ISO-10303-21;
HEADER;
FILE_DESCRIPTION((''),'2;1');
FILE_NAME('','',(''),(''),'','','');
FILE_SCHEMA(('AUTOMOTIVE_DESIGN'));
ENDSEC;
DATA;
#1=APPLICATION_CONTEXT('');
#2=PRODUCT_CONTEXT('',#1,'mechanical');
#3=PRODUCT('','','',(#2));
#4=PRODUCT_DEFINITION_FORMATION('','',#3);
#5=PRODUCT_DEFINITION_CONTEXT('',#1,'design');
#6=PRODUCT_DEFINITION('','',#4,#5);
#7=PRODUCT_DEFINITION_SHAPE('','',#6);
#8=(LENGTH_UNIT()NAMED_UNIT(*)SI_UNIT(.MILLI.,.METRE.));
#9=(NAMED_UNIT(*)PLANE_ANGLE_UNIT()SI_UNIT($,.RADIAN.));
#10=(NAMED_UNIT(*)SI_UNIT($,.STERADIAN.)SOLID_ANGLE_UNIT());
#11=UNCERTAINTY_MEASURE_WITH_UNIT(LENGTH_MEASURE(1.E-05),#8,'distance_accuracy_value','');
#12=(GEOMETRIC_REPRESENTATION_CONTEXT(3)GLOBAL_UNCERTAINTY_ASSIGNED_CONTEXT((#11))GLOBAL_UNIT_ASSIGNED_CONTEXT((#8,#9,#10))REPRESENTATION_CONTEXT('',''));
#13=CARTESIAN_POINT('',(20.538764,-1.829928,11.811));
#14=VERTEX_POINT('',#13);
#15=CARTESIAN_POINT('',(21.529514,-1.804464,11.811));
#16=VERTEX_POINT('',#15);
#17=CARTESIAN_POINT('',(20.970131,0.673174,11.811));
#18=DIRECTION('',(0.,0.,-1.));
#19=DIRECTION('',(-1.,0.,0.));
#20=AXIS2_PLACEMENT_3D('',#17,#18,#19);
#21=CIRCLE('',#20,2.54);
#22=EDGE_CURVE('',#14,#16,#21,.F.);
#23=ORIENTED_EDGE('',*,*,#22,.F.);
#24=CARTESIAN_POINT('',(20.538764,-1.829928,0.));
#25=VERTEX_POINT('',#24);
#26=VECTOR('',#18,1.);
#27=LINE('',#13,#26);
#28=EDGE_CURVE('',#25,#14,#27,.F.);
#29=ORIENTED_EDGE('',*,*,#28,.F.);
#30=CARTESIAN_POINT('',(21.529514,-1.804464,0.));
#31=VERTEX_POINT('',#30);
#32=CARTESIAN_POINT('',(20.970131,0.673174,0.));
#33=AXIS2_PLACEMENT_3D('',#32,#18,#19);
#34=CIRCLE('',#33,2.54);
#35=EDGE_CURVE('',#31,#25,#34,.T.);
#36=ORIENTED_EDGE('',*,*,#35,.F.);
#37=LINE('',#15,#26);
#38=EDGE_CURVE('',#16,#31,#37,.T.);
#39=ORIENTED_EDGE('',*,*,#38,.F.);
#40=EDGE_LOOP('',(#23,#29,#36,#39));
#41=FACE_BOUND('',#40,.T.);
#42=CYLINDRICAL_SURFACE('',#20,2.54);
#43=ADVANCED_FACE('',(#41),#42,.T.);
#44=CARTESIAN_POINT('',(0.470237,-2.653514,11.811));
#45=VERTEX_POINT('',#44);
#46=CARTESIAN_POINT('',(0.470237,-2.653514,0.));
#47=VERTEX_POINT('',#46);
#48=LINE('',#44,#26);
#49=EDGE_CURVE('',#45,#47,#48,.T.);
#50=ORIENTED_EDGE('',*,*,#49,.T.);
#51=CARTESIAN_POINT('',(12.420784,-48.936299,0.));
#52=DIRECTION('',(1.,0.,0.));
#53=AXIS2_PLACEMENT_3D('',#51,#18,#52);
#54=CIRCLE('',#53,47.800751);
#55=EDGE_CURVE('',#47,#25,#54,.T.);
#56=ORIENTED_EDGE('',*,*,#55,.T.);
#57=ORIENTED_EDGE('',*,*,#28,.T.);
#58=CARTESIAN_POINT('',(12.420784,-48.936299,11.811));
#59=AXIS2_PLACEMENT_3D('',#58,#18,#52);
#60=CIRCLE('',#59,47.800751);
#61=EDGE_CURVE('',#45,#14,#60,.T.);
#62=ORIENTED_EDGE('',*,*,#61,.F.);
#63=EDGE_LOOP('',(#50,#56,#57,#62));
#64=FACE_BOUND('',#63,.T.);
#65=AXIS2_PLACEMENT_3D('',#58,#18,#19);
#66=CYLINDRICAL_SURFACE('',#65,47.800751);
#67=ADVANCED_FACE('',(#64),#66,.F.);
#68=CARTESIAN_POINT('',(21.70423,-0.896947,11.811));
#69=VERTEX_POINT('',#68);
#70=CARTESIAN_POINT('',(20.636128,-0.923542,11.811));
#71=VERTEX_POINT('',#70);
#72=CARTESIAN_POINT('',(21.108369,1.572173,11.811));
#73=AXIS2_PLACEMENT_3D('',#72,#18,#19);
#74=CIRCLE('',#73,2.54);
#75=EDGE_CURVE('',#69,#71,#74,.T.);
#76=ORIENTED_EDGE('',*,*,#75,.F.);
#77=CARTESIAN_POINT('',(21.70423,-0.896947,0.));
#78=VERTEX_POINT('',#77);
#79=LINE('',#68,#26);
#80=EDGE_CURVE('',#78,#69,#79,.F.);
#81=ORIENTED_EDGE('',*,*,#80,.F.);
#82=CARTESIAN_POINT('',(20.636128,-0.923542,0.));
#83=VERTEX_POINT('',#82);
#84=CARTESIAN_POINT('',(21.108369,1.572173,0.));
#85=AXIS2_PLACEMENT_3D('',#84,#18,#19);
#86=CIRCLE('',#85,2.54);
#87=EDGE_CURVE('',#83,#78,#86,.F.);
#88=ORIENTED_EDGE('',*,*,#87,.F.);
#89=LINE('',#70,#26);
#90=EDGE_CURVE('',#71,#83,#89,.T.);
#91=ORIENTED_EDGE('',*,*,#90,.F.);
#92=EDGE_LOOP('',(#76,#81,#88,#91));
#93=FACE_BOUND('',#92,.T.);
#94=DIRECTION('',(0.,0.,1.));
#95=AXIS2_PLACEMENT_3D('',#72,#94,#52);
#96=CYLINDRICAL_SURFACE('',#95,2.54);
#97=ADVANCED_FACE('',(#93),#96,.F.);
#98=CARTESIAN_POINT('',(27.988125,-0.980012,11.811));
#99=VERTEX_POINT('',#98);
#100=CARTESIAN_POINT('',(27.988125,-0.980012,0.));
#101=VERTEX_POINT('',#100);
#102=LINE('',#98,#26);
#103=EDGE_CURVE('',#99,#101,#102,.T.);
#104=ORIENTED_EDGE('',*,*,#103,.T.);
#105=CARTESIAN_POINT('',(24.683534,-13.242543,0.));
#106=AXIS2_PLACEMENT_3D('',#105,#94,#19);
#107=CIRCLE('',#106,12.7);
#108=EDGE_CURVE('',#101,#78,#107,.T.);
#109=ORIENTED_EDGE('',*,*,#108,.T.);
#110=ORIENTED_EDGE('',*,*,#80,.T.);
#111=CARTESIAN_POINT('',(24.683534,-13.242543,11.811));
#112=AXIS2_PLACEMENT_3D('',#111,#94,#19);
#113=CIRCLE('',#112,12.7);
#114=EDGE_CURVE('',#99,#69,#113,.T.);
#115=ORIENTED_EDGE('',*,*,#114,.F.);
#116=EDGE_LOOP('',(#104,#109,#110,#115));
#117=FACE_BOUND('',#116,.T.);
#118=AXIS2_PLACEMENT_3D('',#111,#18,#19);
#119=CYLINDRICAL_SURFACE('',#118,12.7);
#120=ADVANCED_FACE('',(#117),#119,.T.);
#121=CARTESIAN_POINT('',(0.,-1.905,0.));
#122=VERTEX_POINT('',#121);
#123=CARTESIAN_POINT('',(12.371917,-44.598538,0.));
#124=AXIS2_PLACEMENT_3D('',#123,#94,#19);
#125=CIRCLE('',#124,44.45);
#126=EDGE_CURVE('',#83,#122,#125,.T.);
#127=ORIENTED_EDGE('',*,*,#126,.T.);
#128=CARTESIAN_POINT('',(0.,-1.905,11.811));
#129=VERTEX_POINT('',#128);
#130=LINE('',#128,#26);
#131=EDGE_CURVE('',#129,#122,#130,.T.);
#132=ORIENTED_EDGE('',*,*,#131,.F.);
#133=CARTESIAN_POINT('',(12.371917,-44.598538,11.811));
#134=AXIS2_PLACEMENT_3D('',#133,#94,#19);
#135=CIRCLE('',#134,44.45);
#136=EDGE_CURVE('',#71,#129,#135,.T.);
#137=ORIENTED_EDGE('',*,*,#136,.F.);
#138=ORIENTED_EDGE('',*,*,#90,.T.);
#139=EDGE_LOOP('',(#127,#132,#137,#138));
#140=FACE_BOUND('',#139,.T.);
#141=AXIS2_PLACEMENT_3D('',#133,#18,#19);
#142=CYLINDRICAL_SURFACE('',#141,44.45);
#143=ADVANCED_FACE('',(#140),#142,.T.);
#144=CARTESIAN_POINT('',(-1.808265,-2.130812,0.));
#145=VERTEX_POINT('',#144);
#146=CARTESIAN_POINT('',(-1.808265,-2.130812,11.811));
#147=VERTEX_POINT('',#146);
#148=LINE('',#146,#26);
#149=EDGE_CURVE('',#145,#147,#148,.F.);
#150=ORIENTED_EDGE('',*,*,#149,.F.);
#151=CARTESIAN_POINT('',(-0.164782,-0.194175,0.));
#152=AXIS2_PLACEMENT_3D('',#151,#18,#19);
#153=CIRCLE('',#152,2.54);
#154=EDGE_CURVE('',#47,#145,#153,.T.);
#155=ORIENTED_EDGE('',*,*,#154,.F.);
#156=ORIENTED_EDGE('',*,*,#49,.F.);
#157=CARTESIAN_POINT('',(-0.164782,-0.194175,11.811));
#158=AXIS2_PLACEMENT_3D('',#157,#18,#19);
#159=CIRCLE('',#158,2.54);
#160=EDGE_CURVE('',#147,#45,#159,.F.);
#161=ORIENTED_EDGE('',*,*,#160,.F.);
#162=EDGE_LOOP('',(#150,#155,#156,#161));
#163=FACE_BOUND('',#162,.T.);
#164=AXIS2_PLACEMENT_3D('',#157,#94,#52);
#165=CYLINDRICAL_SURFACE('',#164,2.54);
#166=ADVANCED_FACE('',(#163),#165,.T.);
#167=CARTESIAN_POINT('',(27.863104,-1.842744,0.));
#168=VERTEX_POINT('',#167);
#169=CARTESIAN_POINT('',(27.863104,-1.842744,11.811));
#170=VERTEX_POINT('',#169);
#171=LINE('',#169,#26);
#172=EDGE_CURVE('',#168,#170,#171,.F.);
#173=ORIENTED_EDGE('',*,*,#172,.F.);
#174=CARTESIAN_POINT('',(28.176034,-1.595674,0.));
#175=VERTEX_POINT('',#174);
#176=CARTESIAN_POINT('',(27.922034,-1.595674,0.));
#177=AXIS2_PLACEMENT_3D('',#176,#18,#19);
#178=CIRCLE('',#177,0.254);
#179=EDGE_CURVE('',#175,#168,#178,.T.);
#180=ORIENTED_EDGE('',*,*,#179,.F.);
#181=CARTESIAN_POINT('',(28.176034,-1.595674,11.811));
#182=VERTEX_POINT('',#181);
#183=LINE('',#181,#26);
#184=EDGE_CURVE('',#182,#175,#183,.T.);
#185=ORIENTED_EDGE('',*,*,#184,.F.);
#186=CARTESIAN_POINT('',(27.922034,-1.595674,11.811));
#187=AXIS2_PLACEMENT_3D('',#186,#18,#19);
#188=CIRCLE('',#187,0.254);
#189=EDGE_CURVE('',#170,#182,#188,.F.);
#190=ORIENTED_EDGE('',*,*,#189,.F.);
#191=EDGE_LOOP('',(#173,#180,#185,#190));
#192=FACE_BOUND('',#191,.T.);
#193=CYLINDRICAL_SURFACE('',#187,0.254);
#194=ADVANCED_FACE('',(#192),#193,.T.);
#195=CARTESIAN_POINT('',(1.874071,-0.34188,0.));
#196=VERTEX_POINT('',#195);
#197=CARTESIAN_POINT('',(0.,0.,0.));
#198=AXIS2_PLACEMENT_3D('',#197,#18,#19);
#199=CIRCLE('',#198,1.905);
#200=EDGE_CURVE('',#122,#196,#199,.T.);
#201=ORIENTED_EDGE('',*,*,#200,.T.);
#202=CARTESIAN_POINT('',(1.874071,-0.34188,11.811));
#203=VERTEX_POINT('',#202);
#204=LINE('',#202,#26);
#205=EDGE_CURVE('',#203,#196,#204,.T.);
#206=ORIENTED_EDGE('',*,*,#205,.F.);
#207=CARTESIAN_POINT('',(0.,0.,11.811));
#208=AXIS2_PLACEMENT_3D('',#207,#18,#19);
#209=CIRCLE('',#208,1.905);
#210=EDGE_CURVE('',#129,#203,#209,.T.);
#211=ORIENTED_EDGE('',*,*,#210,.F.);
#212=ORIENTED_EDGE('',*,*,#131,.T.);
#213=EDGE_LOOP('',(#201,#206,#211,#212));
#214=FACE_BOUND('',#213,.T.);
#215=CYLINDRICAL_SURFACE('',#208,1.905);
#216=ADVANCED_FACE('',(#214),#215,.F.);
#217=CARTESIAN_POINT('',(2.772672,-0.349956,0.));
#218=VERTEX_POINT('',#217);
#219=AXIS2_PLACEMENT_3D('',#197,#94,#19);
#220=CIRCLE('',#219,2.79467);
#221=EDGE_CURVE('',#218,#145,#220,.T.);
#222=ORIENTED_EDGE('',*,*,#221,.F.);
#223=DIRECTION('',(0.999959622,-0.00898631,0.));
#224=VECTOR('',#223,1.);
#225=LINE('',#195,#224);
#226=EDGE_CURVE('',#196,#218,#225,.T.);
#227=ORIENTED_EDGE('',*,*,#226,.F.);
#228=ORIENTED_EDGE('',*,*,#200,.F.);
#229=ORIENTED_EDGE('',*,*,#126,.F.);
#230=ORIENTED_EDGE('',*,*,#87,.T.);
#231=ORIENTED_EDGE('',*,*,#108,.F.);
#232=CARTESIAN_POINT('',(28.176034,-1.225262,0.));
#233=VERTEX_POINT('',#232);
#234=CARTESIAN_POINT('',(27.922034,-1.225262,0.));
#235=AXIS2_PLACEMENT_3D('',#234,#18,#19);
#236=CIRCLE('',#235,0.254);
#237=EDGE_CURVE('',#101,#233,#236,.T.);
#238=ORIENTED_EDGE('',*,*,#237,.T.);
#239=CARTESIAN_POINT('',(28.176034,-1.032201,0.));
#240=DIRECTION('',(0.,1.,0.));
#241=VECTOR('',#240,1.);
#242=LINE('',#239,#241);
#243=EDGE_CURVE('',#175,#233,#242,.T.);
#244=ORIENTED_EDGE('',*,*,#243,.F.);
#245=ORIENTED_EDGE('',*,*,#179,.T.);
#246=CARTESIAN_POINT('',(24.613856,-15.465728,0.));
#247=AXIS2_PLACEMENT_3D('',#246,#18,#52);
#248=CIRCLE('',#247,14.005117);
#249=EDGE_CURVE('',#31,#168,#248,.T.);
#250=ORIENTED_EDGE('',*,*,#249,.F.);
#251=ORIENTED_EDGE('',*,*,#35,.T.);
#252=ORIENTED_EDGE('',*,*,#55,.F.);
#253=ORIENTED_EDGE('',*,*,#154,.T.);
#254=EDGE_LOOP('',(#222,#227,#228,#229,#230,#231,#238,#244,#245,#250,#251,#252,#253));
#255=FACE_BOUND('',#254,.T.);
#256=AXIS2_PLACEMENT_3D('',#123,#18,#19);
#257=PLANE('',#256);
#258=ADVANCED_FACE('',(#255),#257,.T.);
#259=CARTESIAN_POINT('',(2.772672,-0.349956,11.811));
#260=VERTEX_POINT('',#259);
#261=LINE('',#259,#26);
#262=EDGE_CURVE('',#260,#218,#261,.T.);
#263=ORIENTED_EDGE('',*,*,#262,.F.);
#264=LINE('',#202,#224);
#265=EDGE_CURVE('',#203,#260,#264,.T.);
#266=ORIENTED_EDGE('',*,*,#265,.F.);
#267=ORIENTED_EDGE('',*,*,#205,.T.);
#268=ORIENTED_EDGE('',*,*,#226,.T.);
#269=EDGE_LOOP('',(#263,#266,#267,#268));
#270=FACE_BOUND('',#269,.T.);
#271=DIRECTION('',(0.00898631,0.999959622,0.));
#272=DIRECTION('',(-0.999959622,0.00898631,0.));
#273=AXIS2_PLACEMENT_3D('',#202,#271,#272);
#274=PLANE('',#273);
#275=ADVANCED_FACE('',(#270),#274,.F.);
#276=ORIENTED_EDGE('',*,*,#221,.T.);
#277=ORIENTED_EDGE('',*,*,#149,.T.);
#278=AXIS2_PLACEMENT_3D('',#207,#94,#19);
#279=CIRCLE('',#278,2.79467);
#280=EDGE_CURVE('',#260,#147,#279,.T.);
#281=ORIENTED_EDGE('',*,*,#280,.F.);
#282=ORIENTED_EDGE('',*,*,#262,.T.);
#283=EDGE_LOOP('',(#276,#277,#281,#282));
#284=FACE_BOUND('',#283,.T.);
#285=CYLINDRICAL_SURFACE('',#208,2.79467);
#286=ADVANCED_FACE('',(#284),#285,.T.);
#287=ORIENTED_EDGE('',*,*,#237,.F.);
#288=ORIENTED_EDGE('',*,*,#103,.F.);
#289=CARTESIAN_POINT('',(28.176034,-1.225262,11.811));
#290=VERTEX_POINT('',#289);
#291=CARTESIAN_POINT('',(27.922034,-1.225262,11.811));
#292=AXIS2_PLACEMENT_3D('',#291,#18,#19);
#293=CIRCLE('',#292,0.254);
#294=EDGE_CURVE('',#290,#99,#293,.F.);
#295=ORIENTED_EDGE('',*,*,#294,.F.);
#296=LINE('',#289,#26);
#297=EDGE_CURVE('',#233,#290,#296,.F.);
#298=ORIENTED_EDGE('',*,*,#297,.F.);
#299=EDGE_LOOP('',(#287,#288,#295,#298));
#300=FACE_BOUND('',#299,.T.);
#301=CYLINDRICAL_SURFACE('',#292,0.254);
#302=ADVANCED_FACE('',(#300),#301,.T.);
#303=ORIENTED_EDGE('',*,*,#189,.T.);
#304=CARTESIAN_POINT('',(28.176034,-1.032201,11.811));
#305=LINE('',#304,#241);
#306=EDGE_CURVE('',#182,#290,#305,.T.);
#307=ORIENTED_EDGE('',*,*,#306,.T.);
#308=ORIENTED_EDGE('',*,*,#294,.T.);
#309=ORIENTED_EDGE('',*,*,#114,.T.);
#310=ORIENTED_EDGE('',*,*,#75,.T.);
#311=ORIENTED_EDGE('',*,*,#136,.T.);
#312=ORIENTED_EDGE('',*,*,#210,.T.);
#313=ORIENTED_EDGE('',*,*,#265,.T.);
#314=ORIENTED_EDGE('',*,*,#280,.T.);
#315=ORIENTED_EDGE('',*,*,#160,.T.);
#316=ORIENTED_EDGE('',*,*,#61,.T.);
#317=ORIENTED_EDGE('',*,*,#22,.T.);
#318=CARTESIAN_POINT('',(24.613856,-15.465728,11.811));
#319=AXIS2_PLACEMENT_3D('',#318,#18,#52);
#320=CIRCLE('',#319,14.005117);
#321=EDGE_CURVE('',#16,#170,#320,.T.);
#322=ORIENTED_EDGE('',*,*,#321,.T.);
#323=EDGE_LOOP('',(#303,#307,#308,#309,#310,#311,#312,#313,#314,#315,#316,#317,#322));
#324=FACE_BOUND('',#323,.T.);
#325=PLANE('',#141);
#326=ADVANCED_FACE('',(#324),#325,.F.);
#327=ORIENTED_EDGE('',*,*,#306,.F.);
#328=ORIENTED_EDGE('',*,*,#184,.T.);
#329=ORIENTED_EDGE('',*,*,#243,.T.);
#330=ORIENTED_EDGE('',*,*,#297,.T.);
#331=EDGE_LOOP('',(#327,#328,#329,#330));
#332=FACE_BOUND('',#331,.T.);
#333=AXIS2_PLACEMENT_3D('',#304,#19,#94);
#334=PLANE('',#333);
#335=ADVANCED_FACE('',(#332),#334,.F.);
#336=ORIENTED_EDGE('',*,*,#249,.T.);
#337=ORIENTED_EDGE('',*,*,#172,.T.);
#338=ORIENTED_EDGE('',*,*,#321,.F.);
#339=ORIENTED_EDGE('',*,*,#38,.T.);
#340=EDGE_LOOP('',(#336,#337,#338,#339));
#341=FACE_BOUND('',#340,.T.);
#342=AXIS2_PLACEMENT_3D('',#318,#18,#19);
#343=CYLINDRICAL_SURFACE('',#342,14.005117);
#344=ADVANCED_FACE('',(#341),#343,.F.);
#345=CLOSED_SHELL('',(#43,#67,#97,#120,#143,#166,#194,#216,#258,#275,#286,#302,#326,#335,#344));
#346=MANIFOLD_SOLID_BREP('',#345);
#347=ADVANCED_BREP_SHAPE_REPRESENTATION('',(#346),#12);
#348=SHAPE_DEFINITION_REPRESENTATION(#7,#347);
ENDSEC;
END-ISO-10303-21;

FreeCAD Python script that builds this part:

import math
import FreeCAD as App
import Part
import Sketcher
from FreeCAD import Vector
Q = App.Units.Quantity


def edges_at(feature, points):
    """Names of the edges that pass closest to the given points."""
    edges = feature.Shape.Edges
    near = lambda p: min(range(len(edges)), key=lambda i: edges[i].distToShape(Part.Vertex(*p))[0])
    return sorted({f"Edge{near(p) + 1}" for p in points})

doc = App.newDocument("Part")
body = doc.addObject("PartDesign::Body", "Body")

# Sketch on XY plane
sketch1 = body.newObject("Sketcher::SketchObject", "Sketch")
sketch1.AttachmentSupport = (doc.getObject("XY_Plane"), [""])
sketch1.MapMode = "FlatFace"
sketch1.addGeometry(Part.LineSegment(Vector(28.176034, -1.921201, 0), Vector(28.176034, -1.032201, 0)), False)
sketch1.addGeometry(Part.ArcOfCircle(Part.Circle(Vector(24.683534, -13.242543, 0), Vector(0, 0, 1), 12.7), math.radians(74.037986), math.radians(105.962014)), False)
sketch1.addGeometry(Part.ArcOfCircle(Part.Circle(Vector(12.371917, -44.598538, 0), Vector(0, 0, 1), 44.45), math.radians(78.556277), math.radians(106.160758)), False)
sketch1.addGeometry(Part.ArcOfCircle(Part.Circle(Vector(0, 0, 0), Vector(0, 0, 1), 1.905), math.radians(-10.338581), math.radians(270)), False)
sketch1.addGeometry(Part.LineSegment(Vector(1.874071, -0.34188, 0), Vector(2.772672, -0.349956, 0)), False)
sketch1.addGeometry(Part.ArcOfCircle(Part.Circle(Vector(0, 0, 0), Vector(0, 0, 1), 2.79467), math.radians(-7.193607), math.radians(268.745148)), False)
sketch1.addGeometry(Part.ArcOfCircle(Part.Circle(Vector(12.420784, -48.936299, 0), Vector(0, 0, 1), 47.800751), math.radians(79.597631), math.radians(105.136845)), False)
sketch1.addGeometry(Part.ArcOfCircle(Part.Circle(Vector(24.613856, -15.465728, 0), Vector(0, 0, 1), 14.005117), math.radians(75.265029), math.radians(104.734971)), False)
sketch1.addConstraint(Sketcher.Constraint("Coincident", 0, 2, 1, 1))
sketch1.addConstraint(Sketcher.Constraint("Coincident", 1, 2, 2, 1))
sketch1.addConstraint(Sketcher.Constraint("Coincident", 2, 2, 3, 2))
sketch1.addConstraint(Sketcher.Constraint("Coincident", 3, 1, 4, 1))
sketch1.addConstraint(Sketcher.Constraint("Coincident", 4, 2, 5, 1))
sketch1.addConstraint(Sketcher.Constraint("Coincident", 5, 2, 6, 2))
sketch1.addConstraint(Sketcher.Constraint("Coincident", 6, 1, 7, 2))
sketch1.addConstraint(Sketcher.Constraint("Coincident", 7, 1, 0, 1))
sketch1.addConstraint(Sketcher.Constraint("Vertical", 0))
sketch1.addConstraint(Sketcher.Constraint("Coincident", 3, 3, -1, 1))
sketch1.addConstraint(Sketcher.Constraint("Coincident", 5, 3, -1, 1))
sketch1.addConstraint(Sketcher.Constraint("PointOnObject", 2, 2, -2))
sketch1.addConstraint(Sketcher.Constraint("Horizontal", 0, 2, 1, 2))
sketch1.addConstraint(Sketcher.Constraint("Horizontal", 6, 1, 7, 1))
sketch1.addConstraint(Sketcher.Constraint("Radius", 1, Q("0.5 in")))
sketch1.addConstraint(Sketcher.Constraint("Radius", 2, Q("1.75 in")))
sketch1.addConstraint(Sketcher.Constraint("Radius", 3, Q("0.075 in")))
sketch1.addConstraint(Sketcher.Constraint("DistanceY", 0, 1, 0, 2, Q("0.035 in")))
sketch1.addConstraint(Sketcher.Constraint("DistanceY", 5, 2, -1, 1, Q("0.11 in")))
sketch1.addConstraint(Sketcher.Constraint("Radius", 5, Q("2.79467 mm")))
sketch1.addConstraint(Sketcher.Constraint("Radius", 6, Q("47.800751 mm")))
sketch1.addConstraint(Sketcher.Constraint("DistanceX", 1, 2, 0, 2, Q("0.275 in")))
sketch1.addConstraint(Sketcher.Constraint("Radius", 7, Q("14.005117 mm")))
sketch1.addConstraint(Sketcher.Constraint("DistanceY", 1, 3, 3, 1, Q("0.5079001 in")))
sketch1.addConstraint(Sketcher.Constraint("DistanceY", 6, 3, -1, 1, Q("48.936299 mm")))
sketch1.addConstraint(Sketcher.Constraint("DistanceY", 0, 2, -1, 1, Q("1.032201 mm")))
sketch1.addConstraint(Sketcher.Constraint("DistanceX", 3, 1, 4, 2, Q("0.898601 mm")))
sketch1.addConstraint(Sketcher.Constraint("DistanceY", 6, 3, 2, 3, Q("4.337761 mm")))
pad1 = body.newObject("PartDesign::Pad", "Pad")
pad1.Profile = sketch1
pad1.Length = Q("0.465 in")
doc.recompute()

fillet = body.newObject("PartDesign::Fillet", "Fillet")
fillet.Base = (pad1, edges_at(pad1, [(-0.061, -2.794, 5.905)]))
fillet.Radius = Q("0.1 in")
doc.recompute()

fillet2 = body.newObject("PartDesign::Fillet", "Fillet001")
fillet2.Base = (fillet, edges_at(fillet, [(21.052, -1.921, 5.905)]))
fillet2.Radius = Q("0.1 in")
doc.recompute()

fillet3 = body.newObject("PartDesign::Fillet", "Fillet002")
fillet3.Base = (fillet2, edges_at(fillet2, [(21.191, -1.032, 5.905)]))
fillet3.Radius = Q("0.1 in")
doc.recompute()

fillet4 = body.newObject("PartDesign::Fillet", "Fillet003")
fillet4.Base = (fillet3, edges_at(fillet3, [(28.176, -1.032, 5.905), (28.176, -1.921, 5.905)]))
fillet4.Radius = Q("0.01 in")

doc.recompute()
